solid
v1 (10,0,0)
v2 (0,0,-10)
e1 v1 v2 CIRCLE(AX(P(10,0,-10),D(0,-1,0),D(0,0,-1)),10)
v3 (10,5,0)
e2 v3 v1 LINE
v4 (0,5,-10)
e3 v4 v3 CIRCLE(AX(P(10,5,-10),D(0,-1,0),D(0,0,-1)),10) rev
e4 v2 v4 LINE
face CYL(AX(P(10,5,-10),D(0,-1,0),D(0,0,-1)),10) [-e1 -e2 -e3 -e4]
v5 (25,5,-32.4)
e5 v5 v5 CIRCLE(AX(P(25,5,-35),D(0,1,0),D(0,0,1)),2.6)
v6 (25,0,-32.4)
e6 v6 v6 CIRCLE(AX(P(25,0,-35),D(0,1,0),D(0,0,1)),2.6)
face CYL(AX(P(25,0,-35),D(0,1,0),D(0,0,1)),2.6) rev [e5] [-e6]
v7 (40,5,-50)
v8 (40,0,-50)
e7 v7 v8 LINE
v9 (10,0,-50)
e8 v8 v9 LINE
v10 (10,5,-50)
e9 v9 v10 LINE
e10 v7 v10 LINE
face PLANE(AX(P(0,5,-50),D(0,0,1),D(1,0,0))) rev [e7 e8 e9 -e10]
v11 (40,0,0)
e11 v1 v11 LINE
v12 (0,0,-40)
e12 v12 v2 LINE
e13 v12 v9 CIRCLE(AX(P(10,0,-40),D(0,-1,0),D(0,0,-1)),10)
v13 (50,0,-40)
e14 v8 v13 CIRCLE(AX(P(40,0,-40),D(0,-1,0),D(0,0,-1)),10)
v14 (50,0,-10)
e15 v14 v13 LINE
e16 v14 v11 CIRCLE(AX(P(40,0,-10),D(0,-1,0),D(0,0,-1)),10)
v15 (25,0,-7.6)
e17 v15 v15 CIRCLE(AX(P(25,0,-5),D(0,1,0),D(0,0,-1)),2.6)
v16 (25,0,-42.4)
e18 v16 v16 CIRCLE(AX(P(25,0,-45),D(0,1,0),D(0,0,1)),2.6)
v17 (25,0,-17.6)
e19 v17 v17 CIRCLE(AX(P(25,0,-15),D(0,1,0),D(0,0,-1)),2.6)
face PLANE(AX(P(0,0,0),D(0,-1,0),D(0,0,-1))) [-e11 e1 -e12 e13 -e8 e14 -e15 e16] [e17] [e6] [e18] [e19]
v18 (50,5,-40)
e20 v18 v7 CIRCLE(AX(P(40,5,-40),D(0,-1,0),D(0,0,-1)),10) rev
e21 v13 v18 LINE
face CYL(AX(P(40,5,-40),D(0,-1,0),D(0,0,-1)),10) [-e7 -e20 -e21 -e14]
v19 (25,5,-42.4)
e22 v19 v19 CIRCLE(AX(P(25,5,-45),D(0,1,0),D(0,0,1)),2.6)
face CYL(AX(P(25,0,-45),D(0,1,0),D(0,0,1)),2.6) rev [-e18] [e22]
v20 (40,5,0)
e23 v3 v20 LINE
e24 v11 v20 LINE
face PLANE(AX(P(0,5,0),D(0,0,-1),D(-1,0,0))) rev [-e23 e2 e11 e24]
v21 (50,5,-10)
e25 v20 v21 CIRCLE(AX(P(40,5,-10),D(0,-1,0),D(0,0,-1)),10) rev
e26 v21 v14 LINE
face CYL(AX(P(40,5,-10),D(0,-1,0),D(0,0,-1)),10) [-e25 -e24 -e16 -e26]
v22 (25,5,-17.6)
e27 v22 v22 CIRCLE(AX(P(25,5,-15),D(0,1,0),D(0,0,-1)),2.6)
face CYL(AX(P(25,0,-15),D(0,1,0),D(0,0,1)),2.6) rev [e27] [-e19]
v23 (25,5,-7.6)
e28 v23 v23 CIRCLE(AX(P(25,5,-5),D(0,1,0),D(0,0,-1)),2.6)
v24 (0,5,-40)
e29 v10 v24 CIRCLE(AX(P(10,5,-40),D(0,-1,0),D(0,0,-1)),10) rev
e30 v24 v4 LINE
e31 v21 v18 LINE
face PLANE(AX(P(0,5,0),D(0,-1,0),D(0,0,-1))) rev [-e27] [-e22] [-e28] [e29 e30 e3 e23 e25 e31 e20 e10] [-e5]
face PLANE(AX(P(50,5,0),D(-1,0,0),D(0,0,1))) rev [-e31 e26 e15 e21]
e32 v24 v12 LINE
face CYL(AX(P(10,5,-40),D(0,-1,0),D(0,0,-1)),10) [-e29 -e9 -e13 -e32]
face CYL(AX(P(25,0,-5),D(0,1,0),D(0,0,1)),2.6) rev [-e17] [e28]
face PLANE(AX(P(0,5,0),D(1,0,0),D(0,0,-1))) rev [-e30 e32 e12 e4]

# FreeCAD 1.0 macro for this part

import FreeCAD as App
import Part
import Sketcher

V = App.Vector


def edges_at(feature, points):
    """Names of the edges that pass closest to the given points."""
    edges = feature.Shape.Edges
    near = lambda p: min(range(len(edges)), key=lambda i: edges[i].distToShape(Part.Vertex(*p))[0])
    return sorted({f"Edge{near(p) + 1}" for p in points})


def add_polygon(sketch, points):
    """Adds a closed chain of lines whose ends are joined by coincident constraints."""
    first, n = sketch.GeometryCount, len(points)
    for a, b in zip(points, points[1:] + points[:1]):
        sketch.addGeometry(Part.LineSegment(App.Vector(*a, 0), App.Vector(*b, 0)), False)
    for i in range(n):
        sketch.addConstraint(Sketcher.Constraint("Coincident", first + i, 2, first + (i + 1) % n, 1))

doc = App.newDocument("Part")
body = doc.addObject("PartDesign::Body", "Body")

# Sketch on XZ plane
sketch1 = body.newObject("Sketcher::SketchObject", "Sketch")
sketch1.AttachmentSupport = (doc.getObject("XZ_Plane"), [""])
sketch1.MapMode = "FlatFace"
add_polygon(sketch1, [(0, -50), (0, 0), (50, 0), (50, -50)])  # lines 0-3
sketch1.addConstraint(Sketcher.Constraint("Vertical", 0))
sketch1.addConstraint(Sketcher.Constraint("Horizontal", 1))
sketch1.addConstraint(Sketcher.Constraint("Vertical", 2))
sketch1.addConstraint(Sketcher.Constraint("Horizontal", 3))
sketch1.addConstraint(Sketcher.Constraint("Coincident", 0, 2, -1, 1))
sketch1.addConstraint(Sketcher.Constraint("Equal", 3, 0))
sketch1.addConstraint(Sketcher.Constraint("DistanceX", 1, 1, 1, 2, 50.0))
pad1 = body.newObject("PartDesign::Pad", "Pad")
pad1.Profile = sketch1
pad1.Length = 5
pad1.Reversed = True

# Sketch on XZ plane
sketch2 = body.newObject("Sketcher::SketchObject", "Sketch001")
sketch2.AttachmentSupport = (doc.getObject("XZ_Plane"), [""])
sketch2.MapMode = "FlatFace"
sketch2.AttachmentOffset = App.Placement(V(0, 0, -5), App.Rotation())
sketch2.addGeometry(Part.Circle(V(25, -35, 0), V(0, 0, 1), 2.6), False)
sketch2.addGeometry(Part.Circle(V(25, -45, 0), V(0, 0, 1), 2.6), False)
sketch2.addGeometry(Part.Circle(V(25, -15, 0), V(0, 0, 1), 2.6), False)
sketch2.addGeometry(Part.Circle(V(25, -5, 0), V(0, 0, 1), 2.6), False)
sketch2.addConstraint(Sketcher.Constraint("Equal", 0, 1))
sketch2.addConstraint(Sketcher.Constraint("Equal", 1, 2))
sketch2.addConstraint(Sketcher.Constraint("Equal", 2, 3))
sketch2.addConstraint(Sketcher.Constraint("Vertical", 0, 3, 1, 3))
sketch2.addConstraint(Sketcher.Constraint("Vertical", 1, 3, 2, 3))
sketch2.addConstraint(Sketcher.Constraint("Vertical", 2, 3, 3, 3))
sketch2.addConstraint(Sketcher.Constraint("Diameter", 0, 5.2))
sketch2.addConstraint(Sketcher.Constraint("DistanceX", -1, 1, 0, 3, 25.0))
sketch2.addConstraint(Sketcher.Constraint("DistanceY", 0, 3, -1, 1, 35.0))
sketch2.addConstraint(Sketcher.Constraint("DistanceY", 1, 3, -1, 1, 45.0))
sketch2.addConstraint(Sketcher.Constraint("DistanceY", 2, 3, -1, 1, 15.0))
sketch2.addConstraint(Sketcher.Constraint("DistanceY", 3, 3, -1, 1, 5.0))
pocket1 = body.newObject("PartDesign::Pocket", "Pocket")
pocket1.Profile = sketch2
pocket1.Type = "ThroughAll"
pocket1.Reversed = True
doc.recompute()

fillet = body.newObject("PartDesign::Fillet", "Fillet")
fillet.Base = (pocket1, edges_at(pocket1, [
    (0, 2.5, -50),
    (50, 2.5, -50),
    (50, 2.5, 0),
    (0, 2.5, 0),
]))
fillet.Radius = 10

doc.recompute()
